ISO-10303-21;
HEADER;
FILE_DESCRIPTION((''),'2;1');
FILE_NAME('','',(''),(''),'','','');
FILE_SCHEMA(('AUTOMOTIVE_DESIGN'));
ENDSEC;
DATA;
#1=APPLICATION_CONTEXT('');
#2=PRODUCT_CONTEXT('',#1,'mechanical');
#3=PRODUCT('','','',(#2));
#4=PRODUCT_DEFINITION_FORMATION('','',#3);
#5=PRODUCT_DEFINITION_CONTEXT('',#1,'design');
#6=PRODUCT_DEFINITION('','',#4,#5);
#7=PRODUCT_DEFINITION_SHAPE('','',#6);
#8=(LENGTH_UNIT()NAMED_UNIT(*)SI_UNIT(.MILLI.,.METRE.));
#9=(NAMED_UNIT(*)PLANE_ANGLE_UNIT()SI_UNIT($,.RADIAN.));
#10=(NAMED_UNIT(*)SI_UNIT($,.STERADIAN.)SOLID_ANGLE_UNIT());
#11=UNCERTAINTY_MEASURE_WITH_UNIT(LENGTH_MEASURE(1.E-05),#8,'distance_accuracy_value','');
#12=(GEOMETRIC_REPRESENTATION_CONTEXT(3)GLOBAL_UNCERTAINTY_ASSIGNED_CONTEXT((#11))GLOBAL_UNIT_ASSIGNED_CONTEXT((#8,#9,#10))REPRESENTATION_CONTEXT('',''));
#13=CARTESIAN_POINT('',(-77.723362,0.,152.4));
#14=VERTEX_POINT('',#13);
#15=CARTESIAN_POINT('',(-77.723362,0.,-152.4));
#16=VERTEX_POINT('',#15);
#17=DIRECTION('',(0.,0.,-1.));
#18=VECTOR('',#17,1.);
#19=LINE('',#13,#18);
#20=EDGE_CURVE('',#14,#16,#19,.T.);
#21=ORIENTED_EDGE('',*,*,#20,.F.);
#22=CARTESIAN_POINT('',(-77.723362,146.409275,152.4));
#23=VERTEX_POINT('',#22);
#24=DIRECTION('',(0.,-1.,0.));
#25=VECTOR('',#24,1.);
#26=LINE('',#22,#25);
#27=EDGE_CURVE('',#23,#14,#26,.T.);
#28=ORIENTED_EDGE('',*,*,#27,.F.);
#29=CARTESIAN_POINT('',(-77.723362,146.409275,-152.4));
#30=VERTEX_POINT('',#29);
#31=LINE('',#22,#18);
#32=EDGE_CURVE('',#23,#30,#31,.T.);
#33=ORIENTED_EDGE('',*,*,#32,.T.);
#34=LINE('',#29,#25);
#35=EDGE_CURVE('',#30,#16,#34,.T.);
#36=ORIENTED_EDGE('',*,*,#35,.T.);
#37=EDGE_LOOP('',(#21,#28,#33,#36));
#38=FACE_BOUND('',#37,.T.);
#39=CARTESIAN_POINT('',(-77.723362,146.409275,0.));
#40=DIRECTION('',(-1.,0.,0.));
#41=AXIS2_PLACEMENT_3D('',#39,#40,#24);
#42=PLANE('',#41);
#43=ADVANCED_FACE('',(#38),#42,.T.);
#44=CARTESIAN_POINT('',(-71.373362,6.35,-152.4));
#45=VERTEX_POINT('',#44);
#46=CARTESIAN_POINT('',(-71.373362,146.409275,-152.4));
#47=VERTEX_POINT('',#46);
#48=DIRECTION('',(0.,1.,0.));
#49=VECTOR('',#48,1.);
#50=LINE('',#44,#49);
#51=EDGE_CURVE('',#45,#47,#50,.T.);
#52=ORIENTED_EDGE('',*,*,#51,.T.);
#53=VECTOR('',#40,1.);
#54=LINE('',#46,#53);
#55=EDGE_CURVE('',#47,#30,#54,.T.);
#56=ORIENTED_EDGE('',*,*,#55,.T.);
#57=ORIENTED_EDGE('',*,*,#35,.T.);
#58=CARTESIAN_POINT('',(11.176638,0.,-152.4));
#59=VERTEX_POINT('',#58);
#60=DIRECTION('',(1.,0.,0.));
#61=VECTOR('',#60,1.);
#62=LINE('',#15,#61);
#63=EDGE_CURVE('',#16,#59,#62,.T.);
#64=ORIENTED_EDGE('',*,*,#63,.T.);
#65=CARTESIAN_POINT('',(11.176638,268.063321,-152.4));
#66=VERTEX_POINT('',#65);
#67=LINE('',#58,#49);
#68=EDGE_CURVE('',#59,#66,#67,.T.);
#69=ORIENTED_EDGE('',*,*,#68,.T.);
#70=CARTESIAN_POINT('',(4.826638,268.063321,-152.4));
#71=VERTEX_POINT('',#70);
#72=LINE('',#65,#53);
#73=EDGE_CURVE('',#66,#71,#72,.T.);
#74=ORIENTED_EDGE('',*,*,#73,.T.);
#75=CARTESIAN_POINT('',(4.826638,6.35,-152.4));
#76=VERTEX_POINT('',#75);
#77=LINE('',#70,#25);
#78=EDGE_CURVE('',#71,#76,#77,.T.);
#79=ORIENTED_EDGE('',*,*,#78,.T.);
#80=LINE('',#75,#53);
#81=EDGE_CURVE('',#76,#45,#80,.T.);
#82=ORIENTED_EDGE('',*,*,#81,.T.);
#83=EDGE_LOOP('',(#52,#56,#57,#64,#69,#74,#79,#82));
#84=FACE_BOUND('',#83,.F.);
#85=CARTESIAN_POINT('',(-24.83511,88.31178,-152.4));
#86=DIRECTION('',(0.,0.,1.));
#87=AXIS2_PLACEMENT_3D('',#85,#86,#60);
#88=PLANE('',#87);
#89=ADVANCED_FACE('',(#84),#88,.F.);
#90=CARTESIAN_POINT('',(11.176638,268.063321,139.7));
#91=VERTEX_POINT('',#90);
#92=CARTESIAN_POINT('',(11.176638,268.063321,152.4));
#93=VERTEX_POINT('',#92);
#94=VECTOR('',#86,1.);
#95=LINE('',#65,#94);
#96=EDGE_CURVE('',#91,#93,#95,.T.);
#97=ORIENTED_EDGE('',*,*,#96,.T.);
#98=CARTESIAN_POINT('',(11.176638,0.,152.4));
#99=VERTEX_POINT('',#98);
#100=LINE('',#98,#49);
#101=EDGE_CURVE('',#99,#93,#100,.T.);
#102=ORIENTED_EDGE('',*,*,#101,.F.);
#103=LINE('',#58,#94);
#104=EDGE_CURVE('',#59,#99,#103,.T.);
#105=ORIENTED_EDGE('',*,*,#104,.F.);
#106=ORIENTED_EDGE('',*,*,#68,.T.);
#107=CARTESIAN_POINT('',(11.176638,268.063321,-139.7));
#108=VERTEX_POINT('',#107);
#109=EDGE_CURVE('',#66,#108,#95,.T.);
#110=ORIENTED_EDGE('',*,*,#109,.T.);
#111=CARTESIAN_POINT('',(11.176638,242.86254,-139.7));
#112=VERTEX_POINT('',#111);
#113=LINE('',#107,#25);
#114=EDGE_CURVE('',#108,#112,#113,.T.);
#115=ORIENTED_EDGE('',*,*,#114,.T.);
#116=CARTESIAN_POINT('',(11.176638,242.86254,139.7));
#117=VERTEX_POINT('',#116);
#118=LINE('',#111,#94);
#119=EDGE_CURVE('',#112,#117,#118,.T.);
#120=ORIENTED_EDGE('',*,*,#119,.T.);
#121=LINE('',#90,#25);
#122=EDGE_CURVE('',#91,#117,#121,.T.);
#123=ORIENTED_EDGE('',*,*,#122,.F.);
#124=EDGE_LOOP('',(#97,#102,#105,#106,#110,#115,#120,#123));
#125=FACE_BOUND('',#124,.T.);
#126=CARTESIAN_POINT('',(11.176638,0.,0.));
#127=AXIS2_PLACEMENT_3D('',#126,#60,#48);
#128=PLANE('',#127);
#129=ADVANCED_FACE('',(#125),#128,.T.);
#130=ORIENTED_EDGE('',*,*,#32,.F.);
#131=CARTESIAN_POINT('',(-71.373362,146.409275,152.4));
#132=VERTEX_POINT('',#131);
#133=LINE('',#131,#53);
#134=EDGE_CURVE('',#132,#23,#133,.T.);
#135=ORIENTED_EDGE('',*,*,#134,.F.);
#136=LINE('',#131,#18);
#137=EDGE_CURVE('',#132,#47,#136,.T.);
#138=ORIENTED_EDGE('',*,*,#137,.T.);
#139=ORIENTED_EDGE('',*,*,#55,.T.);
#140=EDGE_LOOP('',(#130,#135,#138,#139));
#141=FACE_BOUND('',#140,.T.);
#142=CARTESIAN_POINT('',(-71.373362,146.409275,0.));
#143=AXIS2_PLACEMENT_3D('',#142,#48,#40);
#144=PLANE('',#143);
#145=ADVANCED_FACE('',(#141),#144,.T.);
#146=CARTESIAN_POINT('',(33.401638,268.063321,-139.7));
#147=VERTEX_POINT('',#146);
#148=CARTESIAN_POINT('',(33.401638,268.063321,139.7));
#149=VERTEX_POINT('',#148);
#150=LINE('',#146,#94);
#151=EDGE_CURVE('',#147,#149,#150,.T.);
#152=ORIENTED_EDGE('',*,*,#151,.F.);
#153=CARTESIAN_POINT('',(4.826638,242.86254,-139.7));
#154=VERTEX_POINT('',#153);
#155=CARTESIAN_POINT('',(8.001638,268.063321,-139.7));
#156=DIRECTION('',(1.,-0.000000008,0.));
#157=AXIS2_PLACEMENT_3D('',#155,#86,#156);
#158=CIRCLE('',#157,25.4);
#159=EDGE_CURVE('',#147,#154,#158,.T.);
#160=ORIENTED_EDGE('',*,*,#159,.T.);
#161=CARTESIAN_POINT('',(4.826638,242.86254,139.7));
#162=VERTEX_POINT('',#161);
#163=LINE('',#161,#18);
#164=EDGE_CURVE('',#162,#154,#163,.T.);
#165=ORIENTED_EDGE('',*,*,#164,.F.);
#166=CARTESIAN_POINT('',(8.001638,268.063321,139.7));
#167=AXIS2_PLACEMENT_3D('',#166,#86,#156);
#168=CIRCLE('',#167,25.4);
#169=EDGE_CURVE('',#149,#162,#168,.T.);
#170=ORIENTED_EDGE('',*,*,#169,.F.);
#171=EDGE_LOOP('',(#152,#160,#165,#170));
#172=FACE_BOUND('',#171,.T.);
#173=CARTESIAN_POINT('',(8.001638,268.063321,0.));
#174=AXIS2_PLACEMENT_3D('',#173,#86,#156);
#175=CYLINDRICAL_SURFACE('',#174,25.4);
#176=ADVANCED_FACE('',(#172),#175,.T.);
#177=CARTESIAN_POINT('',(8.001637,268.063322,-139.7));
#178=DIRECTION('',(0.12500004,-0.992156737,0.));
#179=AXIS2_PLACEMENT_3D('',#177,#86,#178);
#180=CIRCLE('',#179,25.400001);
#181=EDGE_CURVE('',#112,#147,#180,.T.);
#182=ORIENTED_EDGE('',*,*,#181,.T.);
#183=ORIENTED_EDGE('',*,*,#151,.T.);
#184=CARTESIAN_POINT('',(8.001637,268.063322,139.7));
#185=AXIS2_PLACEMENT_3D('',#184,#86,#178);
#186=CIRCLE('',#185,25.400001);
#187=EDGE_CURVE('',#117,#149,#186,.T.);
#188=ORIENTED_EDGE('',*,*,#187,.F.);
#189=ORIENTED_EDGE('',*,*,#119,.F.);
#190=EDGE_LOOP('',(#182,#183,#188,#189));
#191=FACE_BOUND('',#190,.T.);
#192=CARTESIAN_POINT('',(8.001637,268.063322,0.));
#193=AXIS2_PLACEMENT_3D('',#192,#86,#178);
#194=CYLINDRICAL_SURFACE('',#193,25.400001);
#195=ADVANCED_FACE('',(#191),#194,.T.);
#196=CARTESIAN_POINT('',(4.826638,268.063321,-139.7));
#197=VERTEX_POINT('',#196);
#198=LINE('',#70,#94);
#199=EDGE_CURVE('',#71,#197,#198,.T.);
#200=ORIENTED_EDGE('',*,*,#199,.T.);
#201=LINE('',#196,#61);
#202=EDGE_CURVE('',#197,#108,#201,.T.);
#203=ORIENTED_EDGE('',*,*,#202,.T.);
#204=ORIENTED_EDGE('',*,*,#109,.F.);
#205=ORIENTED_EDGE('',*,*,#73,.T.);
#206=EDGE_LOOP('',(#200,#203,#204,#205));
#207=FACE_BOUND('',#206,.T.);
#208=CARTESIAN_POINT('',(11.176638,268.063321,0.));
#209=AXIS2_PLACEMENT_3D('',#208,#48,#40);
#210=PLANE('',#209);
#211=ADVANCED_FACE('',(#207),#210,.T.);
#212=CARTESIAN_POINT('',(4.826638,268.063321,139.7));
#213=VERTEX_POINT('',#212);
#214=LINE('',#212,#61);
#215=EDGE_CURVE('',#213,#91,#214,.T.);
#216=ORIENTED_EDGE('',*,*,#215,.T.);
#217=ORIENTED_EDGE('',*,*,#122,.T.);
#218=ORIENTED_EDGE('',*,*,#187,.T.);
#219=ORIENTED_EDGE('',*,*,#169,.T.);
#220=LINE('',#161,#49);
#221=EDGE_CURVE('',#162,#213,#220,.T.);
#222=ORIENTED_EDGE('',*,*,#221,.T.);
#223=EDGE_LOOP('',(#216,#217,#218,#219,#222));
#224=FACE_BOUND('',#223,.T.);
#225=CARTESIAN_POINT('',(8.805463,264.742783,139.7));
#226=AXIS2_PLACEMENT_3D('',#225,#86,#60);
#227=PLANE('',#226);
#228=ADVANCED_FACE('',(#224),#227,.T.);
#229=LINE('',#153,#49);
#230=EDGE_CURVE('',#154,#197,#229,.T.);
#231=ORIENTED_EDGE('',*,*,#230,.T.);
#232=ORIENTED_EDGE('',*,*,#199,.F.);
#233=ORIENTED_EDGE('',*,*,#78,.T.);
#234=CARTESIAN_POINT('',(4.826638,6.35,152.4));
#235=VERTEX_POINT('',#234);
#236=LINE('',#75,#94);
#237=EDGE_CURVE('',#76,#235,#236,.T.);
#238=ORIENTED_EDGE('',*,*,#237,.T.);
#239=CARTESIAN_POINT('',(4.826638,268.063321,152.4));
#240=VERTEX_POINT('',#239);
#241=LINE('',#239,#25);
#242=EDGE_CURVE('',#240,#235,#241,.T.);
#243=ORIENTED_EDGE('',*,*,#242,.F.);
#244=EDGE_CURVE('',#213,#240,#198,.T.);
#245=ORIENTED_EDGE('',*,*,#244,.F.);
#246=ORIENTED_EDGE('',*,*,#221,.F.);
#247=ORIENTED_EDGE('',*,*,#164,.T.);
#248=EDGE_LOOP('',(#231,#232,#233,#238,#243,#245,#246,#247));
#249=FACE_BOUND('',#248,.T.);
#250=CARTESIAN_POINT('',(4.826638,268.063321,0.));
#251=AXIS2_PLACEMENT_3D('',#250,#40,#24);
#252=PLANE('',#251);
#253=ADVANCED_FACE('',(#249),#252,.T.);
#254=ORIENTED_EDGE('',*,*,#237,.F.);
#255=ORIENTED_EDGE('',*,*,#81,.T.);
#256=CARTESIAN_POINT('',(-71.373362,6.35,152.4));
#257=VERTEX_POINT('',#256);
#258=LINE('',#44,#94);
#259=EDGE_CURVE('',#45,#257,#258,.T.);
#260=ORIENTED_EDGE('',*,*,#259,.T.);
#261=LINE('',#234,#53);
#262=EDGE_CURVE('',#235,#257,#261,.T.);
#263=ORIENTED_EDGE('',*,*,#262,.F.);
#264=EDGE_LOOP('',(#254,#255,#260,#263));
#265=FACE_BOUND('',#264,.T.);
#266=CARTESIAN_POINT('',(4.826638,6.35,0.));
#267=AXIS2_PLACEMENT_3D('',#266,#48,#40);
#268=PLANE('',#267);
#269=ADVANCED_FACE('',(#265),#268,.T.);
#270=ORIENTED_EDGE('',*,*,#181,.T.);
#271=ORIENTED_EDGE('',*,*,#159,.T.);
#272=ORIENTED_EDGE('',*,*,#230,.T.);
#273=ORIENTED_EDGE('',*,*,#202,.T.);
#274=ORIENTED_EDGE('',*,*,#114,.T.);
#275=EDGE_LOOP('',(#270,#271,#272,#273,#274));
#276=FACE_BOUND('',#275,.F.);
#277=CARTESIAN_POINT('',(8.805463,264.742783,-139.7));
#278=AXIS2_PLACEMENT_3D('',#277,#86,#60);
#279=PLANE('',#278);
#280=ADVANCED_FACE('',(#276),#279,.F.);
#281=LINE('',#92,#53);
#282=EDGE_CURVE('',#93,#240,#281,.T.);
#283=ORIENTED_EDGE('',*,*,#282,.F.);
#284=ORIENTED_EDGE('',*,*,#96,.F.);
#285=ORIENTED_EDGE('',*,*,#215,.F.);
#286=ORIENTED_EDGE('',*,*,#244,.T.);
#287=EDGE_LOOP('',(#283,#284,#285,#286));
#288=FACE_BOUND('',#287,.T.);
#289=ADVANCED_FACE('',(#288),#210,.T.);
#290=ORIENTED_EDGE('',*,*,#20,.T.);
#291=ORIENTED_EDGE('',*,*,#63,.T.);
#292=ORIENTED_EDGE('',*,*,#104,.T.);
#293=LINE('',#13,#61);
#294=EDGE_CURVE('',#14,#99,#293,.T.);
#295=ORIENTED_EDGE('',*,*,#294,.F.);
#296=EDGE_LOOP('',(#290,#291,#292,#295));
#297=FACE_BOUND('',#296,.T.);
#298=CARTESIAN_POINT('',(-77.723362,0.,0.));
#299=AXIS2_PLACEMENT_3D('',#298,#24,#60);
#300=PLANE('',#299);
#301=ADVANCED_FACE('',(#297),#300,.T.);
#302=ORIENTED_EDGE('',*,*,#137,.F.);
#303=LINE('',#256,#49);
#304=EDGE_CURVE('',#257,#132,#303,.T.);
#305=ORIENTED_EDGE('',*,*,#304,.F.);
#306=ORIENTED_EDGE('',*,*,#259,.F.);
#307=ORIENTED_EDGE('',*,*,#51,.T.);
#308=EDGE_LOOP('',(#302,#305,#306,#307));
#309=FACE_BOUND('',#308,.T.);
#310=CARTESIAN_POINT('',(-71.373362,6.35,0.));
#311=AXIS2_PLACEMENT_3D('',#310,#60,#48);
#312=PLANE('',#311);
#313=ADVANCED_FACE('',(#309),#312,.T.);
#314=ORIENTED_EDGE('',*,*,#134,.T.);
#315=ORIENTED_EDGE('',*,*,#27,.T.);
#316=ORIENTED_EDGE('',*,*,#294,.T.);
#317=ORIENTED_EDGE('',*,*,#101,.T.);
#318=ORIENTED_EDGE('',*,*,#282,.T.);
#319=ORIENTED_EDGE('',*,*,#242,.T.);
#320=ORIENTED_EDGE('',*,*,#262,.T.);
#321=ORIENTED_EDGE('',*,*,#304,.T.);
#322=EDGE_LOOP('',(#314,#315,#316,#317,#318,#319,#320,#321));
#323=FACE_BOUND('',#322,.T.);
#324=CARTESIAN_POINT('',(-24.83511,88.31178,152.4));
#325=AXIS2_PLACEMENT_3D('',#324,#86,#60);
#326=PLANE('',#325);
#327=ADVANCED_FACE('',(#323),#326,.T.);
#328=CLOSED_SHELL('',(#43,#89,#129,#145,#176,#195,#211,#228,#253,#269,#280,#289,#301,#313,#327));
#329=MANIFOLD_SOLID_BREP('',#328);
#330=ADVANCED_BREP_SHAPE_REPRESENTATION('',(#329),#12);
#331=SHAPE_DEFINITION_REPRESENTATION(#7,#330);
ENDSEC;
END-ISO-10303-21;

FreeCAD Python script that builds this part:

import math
import FreeCAD as App
import Part
import Sketcher
Q = App.Units.Quantity


def add_polygon(sketch, points):
    """Adds a closed chain of lines whose ends are joined by coincident constraints."""
    first, n = sketch.GeometryCount, len(points)
    for a, b in zip(points, points[1:] + points[:1]):
        sketch.addGeometry(Part.LineSegment(App.Vector(*a, 0), App.Vector(*b, 0)), False)
    for i in range(n):
        sketch.addConstraint(Sketcher.Constraint("Coincident", first + i, 2, first + (i + 1) % n, 1))

doc = App.newDocument("Part")
body = doc.addObject("PartDesign::Body", "Body")

# Sketch on XY plane
sketch1 = body.newObject("Sketcher::SketchObject", "Sketch")
sketch1.AttachmentSupport = (doc.getObject("XY_Plane"), [""])
sketch1.MapMode = "FlatFace"
add_polygon(sketch1, [(-78, 0), (11, 0), (11, 268), (5, 268), (5, 6), (-71, 6), (-71, 146), (-78, 146)])  # lines 0-7
sketch1.addConstraint([
    Sketcher.Constraint("Horizontal", 0),
    Sketcher.Constraint("Vertical", 1),
    Sketcher.Constraint("Horizontal", 2),
    Sketcher.Constraint("Vertical", 3),
    Sketcher.Constraint("Horizontal", 4),
    Sketcher.Constraint("Vertical", 5),
    Sketcher.Constraint("Horizontal", 6),
    Sketcher.Constraint("Vertical", 7),
    Sketcher.Constraint("PointOnObject", 0, 2, -1),
    Sketcher.Constraint("Equal", 2, 6),
    Sketcher.Constraint("DistanceX", 4, 2, 4, 1, Q("3 in")),
    Sketcher.Constraint("DistanceX", 0, 1, 0, 2, Q("3.5 in")),
    Sketcher.Constraint("DistanceY", -1, 1, 3, 2, Q("0.25 in")),
    Sketcher.Constraint("DistanceY", 1, 1, 1, 2, 268.063321),
    Sketcher.Constraint("DistanceY", 5, 1, 5, 2, 140.059275),
    Sketcher.Constraint("DistanceX", 4, 2, -1, 1, 71.373362),
])
pad1 = body.newObject("PartDesign::Pad", "Pad")
pad1.Profile = sketch1
pad1.Length = Q("12 in")
pad1.Midplane = True

# Sketch on XY plane
sketch2 = body.newObject("Sketcher::SketchObject", "Sketch001")
sketch2.AttachmentSupport = (doc.getObject("XY_Plane"), [""])
sketch2.MapMode = "FlatFace"
sketch2.addGeometry([
    Part.LineSegment(App.Vector(11, 268, 0), App.Vector(11, 243, 0)),  # 0
    Part.ArcOfCircle(Part.Circle(App.Vector(8, 268, 0), App.Vector(0, 0, 1), 25), math.radians(-83), math.radians(0)),  # 1
    Part.ArcOfCircle(Part.Circle(App.Vector(8, 268, 0), App.Vector(0, 0, 1), 25), math.radians(0), math.radians(263)),  # 2
    Part.LineSegment(App.Vector(5, 243, 0), App.Vector(5, 268, 0)),  # 3
    Part.LineSegment(App.Vector(5, 268, 0), App.Vector(11, 268, 0)),  # 4
], False)
sketch2.addConstraint([
    Sketcher.Constraint("Coincident", 0, 2, 1, 1),
    Sketcher.Constraint("Tangent", 1, 2, 2, 1),
    Sketcher.Constraint("Coincident", 2, 2, 3, 1),
    Sketcher.Constraint("Coincident", 3, 2, 4, 1),
    Sketcher.Constraint("Coincident", 4, 2, 0, 1),
    Sketcher.Constraint("Vertical", 0),
    Sketcher.Constraint("Vertical", 3),
    Sketcher.Constraint("Horizontal", 4),
    Sketcher.Constraint("Equal", 1, 2),
    Sketcher.Constraint("Horizontal", 2, 3, 1, 2),
    Sketcher.Constraint("Horizontal", 0, 2, 2, 2),
    Sketcher.Constraint("Horizontal", 1, 2, 3, 2),
    Sketcher.Constraint("Radius", 1, Q("1 in")),
    Sketcher.Constraint("DistanceX", 4, 1, 4, 2, Q("0.25 in")),
    Sketcher.Constraint("DistanceX", -1, 1, 2, 3, 8.001638),
    Sketcher.Constraint("DistanceY", -1, 1, 2, 3, 268.063321),
])
pad2 = body.newObject("PartDesign::Pad", "Pad001")
pad2.Profile = sketch2
pad2.Length = Q("11 in")
pad2.Midplane = True

doc.recompute()
